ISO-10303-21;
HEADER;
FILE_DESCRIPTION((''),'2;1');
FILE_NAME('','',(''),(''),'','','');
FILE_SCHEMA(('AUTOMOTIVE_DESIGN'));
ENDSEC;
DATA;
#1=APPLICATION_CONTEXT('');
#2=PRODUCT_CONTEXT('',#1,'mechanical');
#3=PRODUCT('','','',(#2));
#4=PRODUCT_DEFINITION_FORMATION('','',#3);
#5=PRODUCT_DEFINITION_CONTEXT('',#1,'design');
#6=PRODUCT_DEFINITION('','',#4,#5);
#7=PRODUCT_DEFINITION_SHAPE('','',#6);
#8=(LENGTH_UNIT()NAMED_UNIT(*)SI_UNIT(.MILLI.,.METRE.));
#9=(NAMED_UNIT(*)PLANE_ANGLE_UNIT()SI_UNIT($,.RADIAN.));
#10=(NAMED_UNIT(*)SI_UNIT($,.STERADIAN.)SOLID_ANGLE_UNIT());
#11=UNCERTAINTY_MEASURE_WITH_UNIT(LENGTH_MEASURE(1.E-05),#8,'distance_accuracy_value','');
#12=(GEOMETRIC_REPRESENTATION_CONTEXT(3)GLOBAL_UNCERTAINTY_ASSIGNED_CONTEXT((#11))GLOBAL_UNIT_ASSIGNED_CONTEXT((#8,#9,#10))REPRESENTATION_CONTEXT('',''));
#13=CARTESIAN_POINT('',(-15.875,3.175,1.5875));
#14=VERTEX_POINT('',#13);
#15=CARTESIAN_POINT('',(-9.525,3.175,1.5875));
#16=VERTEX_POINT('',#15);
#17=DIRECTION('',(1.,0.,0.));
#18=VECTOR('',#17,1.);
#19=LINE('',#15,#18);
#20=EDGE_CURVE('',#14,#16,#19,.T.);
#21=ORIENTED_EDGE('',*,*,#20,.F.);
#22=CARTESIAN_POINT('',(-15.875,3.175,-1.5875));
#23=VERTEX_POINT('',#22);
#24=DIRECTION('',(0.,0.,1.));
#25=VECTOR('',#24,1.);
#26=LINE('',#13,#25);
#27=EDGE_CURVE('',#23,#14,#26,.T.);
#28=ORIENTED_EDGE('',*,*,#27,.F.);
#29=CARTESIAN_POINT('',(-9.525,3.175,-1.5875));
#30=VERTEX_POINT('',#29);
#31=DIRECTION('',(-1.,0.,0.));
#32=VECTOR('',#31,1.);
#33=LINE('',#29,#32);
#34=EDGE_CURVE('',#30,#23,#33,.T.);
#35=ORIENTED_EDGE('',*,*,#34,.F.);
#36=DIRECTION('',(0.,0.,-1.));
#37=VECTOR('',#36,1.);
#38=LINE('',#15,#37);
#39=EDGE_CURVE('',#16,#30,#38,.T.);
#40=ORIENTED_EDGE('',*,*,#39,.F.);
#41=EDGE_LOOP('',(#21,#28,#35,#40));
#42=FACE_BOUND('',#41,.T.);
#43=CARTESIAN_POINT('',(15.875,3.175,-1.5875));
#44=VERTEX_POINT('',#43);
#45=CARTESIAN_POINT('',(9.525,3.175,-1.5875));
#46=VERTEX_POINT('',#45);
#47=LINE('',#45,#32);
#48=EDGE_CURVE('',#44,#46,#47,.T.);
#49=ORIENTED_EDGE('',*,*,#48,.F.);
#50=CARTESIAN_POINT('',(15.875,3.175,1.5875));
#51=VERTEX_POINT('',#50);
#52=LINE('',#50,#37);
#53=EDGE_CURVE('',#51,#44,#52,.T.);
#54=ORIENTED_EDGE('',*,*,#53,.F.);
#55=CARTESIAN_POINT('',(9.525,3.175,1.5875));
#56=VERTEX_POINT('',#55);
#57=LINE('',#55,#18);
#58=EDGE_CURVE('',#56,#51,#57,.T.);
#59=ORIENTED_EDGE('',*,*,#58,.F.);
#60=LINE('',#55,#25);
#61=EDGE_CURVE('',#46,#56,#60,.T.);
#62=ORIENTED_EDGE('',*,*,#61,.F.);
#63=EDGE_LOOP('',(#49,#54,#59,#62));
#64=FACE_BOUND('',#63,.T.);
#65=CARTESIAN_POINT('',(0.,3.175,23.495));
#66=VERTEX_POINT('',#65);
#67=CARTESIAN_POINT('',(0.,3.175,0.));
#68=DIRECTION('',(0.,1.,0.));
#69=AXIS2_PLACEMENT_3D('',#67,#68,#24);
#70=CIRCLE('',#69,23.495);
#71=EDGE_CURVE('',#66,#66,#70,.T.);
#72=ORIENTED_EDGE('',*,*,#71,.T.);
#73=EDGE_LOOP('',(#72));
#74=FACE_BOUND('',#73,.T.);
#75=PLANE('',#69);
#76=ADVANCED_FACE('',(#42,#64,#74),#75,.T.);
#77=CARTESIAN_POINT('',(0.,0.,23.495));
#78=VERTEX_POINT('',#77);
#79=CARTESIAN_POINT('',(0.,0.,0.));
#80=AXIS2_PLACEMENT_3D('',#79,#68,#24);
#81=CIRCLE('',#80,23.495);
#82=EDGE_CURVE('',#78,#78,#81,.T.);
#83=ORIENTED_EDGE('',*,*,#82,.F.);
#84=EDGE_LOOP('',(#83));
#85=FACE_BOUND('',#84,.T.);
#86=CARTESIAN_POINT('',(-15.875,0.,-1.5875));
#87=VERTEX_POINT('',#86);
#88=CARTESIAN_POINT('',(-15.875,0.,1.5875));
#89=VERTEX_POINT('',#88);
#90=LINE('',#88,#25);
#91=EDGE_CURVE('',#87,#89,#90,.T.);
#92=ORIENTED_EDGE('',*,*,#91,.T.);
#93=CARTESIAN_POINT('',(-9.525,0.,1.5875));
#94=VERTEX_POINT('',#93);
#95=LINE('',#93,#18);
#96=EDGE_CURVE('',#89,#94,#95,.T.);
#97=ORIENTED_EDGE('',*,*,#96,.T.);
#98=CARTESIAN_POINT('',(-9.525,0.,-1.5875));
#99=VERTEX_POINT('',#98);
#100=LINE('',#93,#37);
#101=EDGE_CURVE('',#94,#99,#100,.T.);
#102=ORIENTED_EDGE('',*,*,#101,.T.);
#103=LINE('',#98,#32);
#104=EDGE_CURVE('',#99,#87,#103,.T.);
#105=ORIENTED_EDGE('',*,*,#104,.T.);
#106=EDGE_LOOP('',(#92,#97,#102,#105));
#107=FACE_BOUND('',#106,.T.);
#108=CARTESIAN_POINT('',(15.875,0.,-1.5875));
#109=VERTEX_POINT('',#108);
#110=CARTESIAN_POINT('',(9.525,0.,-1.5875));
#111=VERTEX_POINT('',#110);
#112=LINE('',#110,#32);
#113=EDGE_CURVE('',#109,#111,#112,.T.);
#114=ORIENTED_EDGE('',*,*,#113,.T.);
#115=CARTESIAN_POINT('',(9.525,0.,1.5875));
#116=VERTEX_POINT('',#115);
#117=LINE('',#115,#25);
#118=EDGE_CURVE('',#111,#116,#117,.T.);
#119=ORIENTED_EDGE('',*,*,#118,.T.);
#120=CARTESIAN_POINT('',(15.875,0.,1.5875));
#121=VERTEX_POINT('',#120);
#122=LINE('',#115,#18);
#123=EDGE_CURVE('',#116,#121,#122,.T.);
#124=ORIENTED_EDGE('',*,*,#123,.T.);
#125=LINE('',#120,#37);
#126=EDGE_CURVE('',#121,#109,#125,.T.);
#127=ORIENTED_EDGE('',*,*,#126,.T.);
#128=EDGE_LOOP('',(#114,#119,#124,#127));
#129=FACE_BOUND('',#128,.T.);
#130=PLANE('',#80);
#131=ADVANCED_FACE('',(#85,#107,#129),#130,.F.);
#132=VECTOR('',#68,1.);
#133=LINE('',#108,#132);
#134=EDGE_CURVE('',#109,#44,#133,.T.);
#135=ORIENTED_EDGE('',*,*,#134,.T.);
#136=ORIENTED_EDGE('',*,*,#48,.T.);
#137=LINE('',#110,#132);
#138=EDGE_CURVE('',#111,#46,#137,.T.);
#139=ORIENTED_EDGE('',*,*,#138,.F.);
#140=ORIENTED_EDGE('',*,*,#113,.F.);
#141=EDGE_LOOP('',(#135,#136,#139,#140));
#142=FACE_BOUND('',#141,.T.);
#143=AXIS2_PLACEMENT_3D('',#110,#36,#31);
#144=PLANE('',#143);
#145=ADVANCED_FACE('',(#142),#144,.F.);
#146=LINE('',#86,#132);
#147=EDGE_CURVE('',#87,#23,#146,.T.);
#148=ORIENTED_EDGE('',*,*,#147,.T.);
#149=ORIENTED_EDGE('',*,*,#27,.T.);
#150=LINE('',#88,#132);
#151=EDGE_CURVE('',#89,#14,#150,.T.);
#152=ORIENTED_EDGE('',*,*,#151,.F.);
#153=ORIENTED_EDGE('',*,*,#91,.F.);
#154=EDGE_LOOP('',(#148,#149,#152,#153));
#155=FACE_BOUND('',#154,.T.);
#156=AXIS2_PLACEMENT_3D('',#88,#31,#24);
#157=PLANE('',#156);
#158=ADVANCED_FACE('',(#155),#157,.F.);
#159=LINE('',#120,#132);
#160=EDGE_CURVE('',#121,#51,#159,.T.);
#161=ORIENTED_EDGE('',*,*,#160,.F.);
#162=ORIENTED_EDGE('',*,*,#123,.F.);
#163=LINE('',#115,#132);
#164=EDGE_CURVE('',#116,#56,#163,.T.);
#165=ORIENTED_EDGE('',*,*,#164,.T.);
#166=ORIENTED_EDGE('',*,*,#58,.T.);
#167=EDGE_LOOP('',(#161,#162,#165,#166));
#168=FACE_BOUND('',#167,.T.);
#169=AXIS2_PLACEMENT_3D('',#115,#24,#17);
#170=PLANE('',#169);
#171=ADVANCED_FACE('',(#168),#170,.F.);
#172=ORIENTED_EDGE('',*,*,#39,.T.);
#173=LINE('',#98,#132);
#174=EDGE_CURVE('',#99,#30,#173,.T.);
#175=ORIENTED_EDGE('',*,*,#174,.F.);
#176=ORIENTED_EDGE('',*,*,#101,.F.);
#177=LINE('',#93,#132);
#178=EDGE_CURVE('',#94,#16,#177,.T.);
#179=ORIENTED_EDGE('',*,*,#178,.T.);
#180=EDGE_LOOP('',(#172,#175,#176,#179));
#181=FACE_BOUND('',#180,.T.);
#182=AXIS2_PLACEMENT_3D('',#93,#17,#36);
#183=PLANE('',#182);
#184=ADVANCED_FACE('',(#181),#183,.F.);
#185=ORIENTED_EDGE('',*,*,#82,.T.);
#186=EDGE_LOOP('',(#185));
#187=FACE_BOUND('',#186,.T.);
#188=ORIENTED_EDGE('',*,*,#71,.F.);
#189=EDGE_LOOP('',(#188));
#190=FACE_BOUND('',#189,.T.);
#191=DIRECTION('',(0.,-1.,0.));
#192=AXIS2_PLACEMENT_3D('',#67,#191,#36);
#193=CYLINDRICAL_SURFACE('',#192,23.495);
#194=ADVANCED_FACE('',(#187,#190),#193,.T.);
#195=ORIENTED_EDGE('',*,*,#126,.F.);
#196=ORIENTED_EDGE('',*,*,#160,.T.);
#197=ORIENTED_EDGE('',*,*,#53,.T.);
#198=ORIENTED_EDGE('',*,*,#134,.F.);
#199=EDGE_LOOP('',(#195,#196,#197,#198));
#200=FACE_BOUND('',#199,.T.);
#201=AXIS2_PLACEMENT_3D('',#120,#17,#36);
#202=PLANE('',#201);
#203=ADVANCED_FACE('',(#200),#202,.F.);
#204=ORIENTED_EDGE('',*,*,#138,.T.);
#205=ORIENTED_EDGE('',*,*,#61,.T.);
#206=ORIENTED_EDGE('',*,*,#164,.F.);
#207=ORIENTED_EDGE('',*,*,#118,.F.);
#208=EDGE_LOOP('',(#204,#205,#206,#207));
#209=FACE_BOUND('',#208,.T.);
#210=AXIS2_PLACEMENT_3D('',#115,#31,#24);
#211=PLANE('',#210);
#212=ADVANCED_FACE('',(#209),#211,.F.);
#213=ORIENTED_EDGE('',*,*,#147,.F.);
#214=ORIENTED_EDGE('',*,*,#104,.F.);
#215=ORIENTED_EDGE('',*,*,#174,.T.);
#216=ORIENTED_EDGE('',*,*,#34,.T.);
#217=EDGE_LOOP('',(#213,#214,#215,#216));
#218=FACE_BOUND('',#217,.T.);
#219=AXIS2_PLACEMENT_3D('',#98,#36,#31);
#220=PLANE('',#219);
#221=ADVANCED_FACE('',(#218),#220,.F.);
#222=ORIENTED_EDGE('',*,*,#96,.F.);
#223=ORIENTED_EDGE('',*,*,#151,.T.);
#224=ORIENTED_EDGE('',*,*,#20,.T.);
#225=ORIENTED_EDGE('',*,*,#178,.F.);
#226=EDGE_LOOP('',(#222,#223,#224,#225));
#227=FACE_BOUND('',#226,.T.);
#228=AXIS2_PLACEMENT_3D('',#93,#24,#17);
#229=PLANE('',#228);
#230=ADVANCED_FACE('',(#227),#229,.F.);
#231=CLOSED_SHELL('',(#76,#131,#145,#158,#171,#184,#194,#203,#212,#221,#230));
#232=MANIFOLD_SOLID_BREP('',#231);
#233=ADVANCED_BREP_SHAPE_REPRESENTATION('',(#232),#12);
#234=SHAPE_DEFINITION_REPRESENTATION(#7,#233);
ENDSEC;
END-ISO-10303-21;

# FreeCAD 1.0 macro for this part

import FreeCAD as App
import Part
import Sketcher

V = App.Vector
Q = App.Units.Quantity

doc = App.newDocument("Part")
body = doc.addObject("PartDesign::Body", "Body")

sketch1 = doc.addObject("Sketcher::SketchObject", "Sketch")
body.addObject(sketch1)
sketch1.AttachmentSupport = (doc.XZ_Plane, [""])
sketch1.MapMode = "FlatFace"
sketch1.addGeometry(Part.Circle(V(0, 0, 0), V(0, 0, 1), 23.495), False)
sketch1.addConstraint([
    Sketcher.Constraint("Coincident", 0, 3, -1, 1),
    Sketcher.Constraint("Diameter", 0, Q("1.85 in")),
])
pad1 = doc.addObject("PartDesign::Pad", "Pad")
body.addObject(pad1)
pad1.Profile = sketch1
pad1.Length = Q("0.125 in")
pad1.Reversed = True

sketch2 = doc.addObject("Sketcher::SketchObject", "Sketch001")
body.addObject(sketch2)
sketch2.AttachmentSupport = (doc.XZ_Plane, [""])
sketch2.MapMode = "FlatFace"
sketch2.AttachmentOffset = App.Placement(V(0, 0, -0.125 * 25.4), App.Rotation())
sketch2.addGeometry([
    Part.LineSegment(V(-15.875, -1.5875, 0), V(-15.875, 1.5875, 0)),
    Part.LineSegment(V(-15.875, 1.5875, 0), V(-9.525, 1.5875, 0)),
    Part.LineSegment(V(-9.525, 1.5875, 0), V(-9.525, -1.5875, 0)),
    Part.LineSegment(V(-9.525, -1.5875, 0), V(-15.875, -1.5875, 0)),
    Part.LineSegment(V(9.525, -1.5875, 0), V(9.525, 1.5875, 0)),
    Part.LineSegment(V(9.525, 1.5875, 0), V(15.875, 1.5875, 0)),
    Part.LineSegment(V(15.875, 1.5875, 0), V(15.875, -1.5875, 0)),
    Part.LineSegment(V(15.875, -1.5875, 0), V(9.525, -1.5875, 0)),
], False)
sketch2.addConstraint([
    Sketcher.Constraint("Coincident", 0, 2, 1, 1),
    Sketcher.Constraint("Coincident", 1, 2, 2, 1),
    Sketcher.Constraint("Coincident", 2, 2, 3, 1),
    Sketcher.Constraint("Coincident", 3, 2, 0, 1),
    Sketcher.Constraint("Coincident", 4, 2, 5, 1),
    Sketcher.Constraint("Coincident", 5, 2, 6, 1),
    Sketcher.Constraint("Coincident", 6, 2, 7, 1),
    Sketcher.Constraint("Coincident", 7, 2, 4, 1),
    Sketcher.Constraint("Vertical", 0),
    Sketcher.Constraint("Horizontal", 1),
    Sketcher.Constraint("Vertical", 2),
    Sketcher.Constraint("Horizontal", 3),
    Sketcher.Constraint("Vertical", 4),
    Sketcher.Constraint("Horizontal", 5),
    Sketcher.Constraint("Vertical", 6),
    Sketcher.Constraint("Horizontal", 7),
    Sketcher.Constraint("Symmetric", 2, 2, 4, 2, -1, 1),
    Sketcher.Constraint("Symmetric", 0, 2, 6, 2, -1, 1),
    Sketcher.Constraint("Horizontal", 1, 2, 4, 2),
    Sketcher.Constraint("DistanceX", 0, 2, 4, 2, Q("1 in")),
    Sketcher.Constraint("DistanceX", 1, 1, 1, 2, Q("0.25 in")),
    Sketcher.Constraint("DistanceY", 0, 1, 0, 2, Q("0.125 in")),
])
pocket1 = doc.addObject("PartDesign::Pocket", "Pocket")
body.addObject(pocket1)
pocket1.Profile = sketch2
pocket1.Type = "ThroughAll"
pocket1.Reversed = True

doc.recompute()
